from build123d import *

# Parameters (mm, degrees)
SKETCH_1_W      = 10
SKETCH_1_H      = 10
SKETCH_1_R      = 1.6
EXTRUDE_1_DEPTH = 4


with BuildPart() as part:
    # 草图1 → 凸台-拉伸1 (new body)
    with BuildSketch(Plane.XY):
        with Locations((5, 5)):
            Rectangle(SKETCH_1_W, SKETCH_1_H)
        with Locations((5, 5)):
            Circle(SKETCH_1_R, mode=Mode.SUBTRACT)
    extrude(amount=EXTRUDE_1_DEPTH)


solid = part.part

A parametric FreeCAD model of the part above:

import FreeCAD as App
import Part
import Sketcher

V = App.Vector
Q = App.Units.Quantity

doc = App.newDocument("Part")
params = doc.addObject("Spreadsheet::Sheet", "Params")
for row, (alias, value) in enumerate([
    ("sketch1_diameter", "3.2 mm"),
    ("sketch1_width", "10 mm"),
    ("pad1_length", "4 mm"),
], start=1):
    params.set(f"A{row}", alias)
    params.set(f"B{row}", "=" + value)
    params.setAlias(f"B{row}", alias)

body = doc.addObject("PartDesign::Body", "Body")

# Sketch on XY plane
sketch1 = body.newObject("Sketcher::SketchObject", "Sketch")
sketch1.AttachmentSupport = (doc.getObject("XY_Plane"), [""])
sketch1.MapMode = "FlatFace"
sketch1.addGeometry(Part.LineSegment(V(0, 10, 0), V(0, 0, 0)), False)
sketch1.addGeometry(Part.LineSegment(V(0, 0, 0), V(10, 0, 0)), False)
sketch1.addGeometry(Part.LineSegment(V(10, 0, 0), V(10, 10, 0)), False)
sketch1.addGeometry(Part.LineSegment(V(10, 10, 0), V(0, 10, 0)), False)
sketch1.addGeometry(Part.Circle(V(5, 5, 0), V(0, 0, 1), 1.6), False)
sketch1.addConstraint(Sketcher.Constraint("Coincident", 0, 2, 1, 1))
sketch1.addConstraint(Sketcher.Constraint("Coincident", 1, 2, 2, 1))
sketch1.addConstraint(Sketcher.Constraint("Coincident", 2, 2, 3, 1))
sketch1.addConstraint(Sketcher.Constraint("Coincident", 3, 2, 0, 1))
sketch1.addConstraint(Sketcher.Constraint("Vertical", 0))
sketch1.addConstraint(Sketcher.Constraint("Horizontal", 1))
sketch1.addConstraint(Sketcher.Constraint("Vertical", 2))
sketch1.addConstraint(Sketcher.Constraint("Horizontal", 3))
sketch1.addConstraint(Sketcher.Constraint("Coincident", 0, 2, -1, 1))
sketch1.addConstraint(Sketcher.Constraint("Equal", 3, 0))
sketch1.addConstraint(Sketcher.Constraint("Diameter", 4, Q("3.2 mm")))
sketch1.addConstraint(Sketcher.Constraint("DistanceX", 1, 1, 1, 2, Q("10 mm")))
sketch1.addConstraint(Sketcher.Constraint("DistanceX", -1, 1, 4, 3, Q("5 mm")))
sketch1.addConstraint(Sketcher.Constraint("DistanceY", -1, 1, 4, 3, Q("5 mm")))
sketch1.setExpression("Constraints[10]", "Params.sketch1_diameter")
sketch1.setExpression("Constraints[11]", "Params.sketch1_width")
pad1 = body.newObject("PartDesign::Pad", "Pad")
pad1.Profile = sketch1
pad1.setExpression("Length", "Params.pad1_length")

doc.recompute()
